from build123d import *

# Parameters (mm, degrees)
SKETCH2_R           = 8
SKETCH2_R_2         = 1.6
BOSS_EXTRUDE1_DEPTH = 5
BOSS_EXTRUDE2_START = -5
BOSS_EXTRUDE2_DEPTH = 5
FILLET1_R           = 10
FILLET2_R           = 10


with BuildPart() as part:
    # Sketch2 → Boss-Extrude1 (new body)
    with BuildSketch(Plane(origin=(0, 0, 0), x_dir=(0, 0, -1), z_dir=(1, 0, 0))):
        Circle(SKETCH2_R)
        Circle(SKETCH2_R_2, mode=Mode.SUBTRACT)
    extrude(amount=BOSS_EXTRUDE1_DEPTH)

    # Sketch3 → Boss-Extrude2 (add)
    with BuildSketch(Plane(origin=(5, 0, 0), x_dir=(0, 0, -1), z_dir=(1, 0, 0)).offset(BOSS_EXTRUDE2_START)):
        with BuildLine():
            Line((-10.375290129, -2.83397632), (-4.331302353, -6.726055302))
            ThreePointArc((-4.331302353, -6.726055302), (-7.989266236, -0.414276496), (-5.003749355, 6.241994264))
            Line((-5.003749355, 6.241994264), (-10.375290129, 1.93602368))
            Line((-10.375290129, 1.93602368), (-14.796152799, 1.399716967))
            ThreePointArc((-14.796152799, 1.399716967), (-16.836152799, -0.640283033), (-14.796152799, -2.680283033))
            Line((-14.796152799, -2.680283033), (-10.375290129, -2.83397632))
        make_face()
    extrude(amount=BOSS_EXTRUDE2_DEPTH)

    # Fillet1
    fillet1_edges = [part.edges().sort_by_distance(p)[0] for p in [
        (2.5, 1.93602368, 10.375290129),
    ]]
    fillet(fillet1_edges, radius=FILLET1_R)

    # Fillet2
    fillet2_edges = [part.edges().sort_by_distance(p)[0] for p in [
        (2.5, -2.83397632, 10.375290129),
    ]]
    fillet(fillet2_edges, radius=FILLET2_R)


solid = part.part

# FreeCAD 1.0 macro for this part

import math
import FreeCAD as App
import Part
import Sketcher
Q = App.Units.Quantity


def edges_at(feature, points):
    """Names of the edges that pass closest to the given points."""
    edges = feature.Shape.Edges
    near = lambda p: min(range(len(edges)), key=lambda i: edges[i].distToShape(Part.Vertex(*p))[0])
    return sorted({f"Edge{near(p) + 1}" for p in points})

doc = App.newDocument("Part")
body = doc.addObject("PartDesign::Body", "Body")

# Sketch on YZ plane
sketch1 = body.newObject("Sketcher::SketchObject", "Sketch")
sketch1.AttachmentSupport = (doc.getObject("YZ_Plane"), [""])
sketch1.MapMode = "FlatFace"
sketch1.addGeometry(Part.Circle(App.Vector(0, 0, 0), App.Vector(0, 0, 1), 8), False)
sketch1.addGeometry(Part.Circle(App.Vector(0, 0, 0), App.Vector(0, 0, 1), 1.6), False)
sketch1.addConstraint(Sketcher.Constraint("Coincident", 0, 3, -1, 1))
sketch1.addConstraint(Sketcher.Constraint("Coincident", 1, 3, -1, 1))
sketch1.addConstraint(Sketcher.Constraint("Diameter", 0, Q("16 mm")))
sketch1.addConstraint(Sketcher.Constraint("Diameter", 1, Q("3.2 mm")))
pad1 = body.newObject("PartDesign::Pad", "Pad")
pad1.Profile = sketch1
pad1.Length = 5

# Sketch on YZ plane
sketch2 = body.newObject("Sketcher::SketchObject", "Sketch001")
sketch2.AttachmentSupport = (doc.getObject("YZ_Plane"), [""])
sketch2.MapMode = "FlatFace"
sketch2.addGeometry(Part.LineSegment(App.Vector(-2.8, 10.4, 0), App.Vector(-6.7, 4.3, 0)), False)
sketch2.addGeometry(Part.ArcOfCircle(Part.Circle(App.Vector(0, 0, 0), App.Vector(0, 0, 1), 8), math.radians(39), math.radians(147)), False)
sketch2.addGeometry(Part.LineSegment(App.Vector(6.2, 5, 0), App.Vector(1.9, 10.4, 0)), False)
sketch2.addGeometry(Part.LineSegment(App.Vector(1.9, 10.4, 0), App.Vector(1.4, 14.8, 0)), False)
sketch2.addGeometry(Part.ArcOfCircle(Part.Circle(App.Vector(-0.6, 14.8, 0), App.Vector(0, 0, 1), 2), math.radians(0), math.radians(180)), False)
sketch2.addGeometry(Part.LineSegment(App.Vector(-2.7, 14.8, 0), App.Vector(-2.8, 10.4, 0)), False)
sketch2.addConstraint(Sketcher.Constraint("Tangent", 0, 2, 1, 2))
sketch2.addConstraint(Sketcher.Constraint("Tangent", 1, 1, 2, 1))
sketch2.addConstraint(Sketcher.Constraint("Coincident", 2, 2, 3, 1))
sketch2.addConstraint(Sketcher.Constraint("Coincident", 3, 2, 4, 1))
sketch2.addConstraint(Sketcher.Constraint("Coincident", 4, 2, 5, 1))
sketch2.addConstraint(Sketcher.Constraint("Coincident", 5, 2, 0, 1))
sketch2.addConstraint(Sketcher.Constraint("Coincident", 1, 3, -1, 1))
sketch2.addConstraint(Sketcher.Constraint("Horizontal", 4, 3, 3, 2))
sketch2.addConstraint(Sketcher.Constraint("Horizontal", 3, 2, 4, 2))
sketch2.addConstraint(Sketcher.Constraint("Horizontal", 2, 2, 5, 2))
sketch2.addConstraint(Sketcher.Constraint("Radius", 1, Q("8 mm")))
sketch2.addConstraint(Sketcher.Constraint("Radius", 4, Q("2.04 mm")))
sketch2.addConstraint(Sketcher.Constraint("DistanceX", 5, 2, 2, 2, Q("4.77 mm")))
sketch2.addConstraint(Sketcher.Constraint("Distance", 2, Q("6.884391 mm")))
sketch2.addConstraint(Sketcher.Constraint("DistanceY", -1, 1, 1, 1, Q("5.003749 mm")))
sketch2.addConstraint(Sketcher.Constraint("DistanceY", 0, 2, 4, 3, Q("10.46485 mm")))
sketch2.addConstraint(Sketcher.Constraint("Distance", 3, Q("4.453274 mm")))
pad2 = body.newObject("PartDesign::Pad", "Pad001")
pad2.Profile = sketch2
pad2.Length = 5
doc.recompute()

fillet = body.newObject("PartDesign::Fillet", "Fillet")
fillet.Base = (pad2, edges_at(pad2, [(2.5, 1.936, 10.375)]))
fillet.Radius = 10
doc.recompute()

fillet2 = body.newObject("PartDesign::Fillet", "Fillet001")
fillet2.Base = (fillet, edges_at(fillet, [(2.5, -2.834, 10.375)]))
fillet2.Radius = 10

doc.recompute()
